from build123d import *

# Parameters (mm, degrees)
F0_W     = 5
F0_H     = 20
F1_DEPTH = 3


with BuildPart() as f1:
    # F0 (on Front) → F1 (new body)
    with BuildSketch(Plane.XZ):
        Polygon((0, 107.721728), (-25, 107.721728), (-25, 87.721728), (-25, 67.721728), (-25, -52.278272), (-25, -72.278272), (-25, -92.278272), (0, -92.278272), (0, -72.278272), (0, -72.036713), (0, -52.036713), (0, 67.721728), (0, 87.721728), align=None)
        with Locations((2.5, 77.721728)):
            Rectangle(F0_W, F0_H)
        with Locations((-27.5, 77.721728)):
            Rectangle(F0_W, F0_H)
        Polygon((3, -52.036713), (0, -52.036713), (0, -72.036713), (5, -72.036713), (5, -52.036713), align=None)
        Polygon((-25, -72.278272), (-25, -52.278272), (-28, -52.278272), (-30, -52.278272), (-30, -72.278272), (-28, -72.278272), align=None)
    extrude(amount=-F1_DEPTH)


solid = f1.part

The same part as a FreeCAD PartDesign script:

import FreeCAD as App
import Part
import Sketcher
from FreeCAD import Vector
Q = App.Units.Quantity


def add_polygon(sketch, points):
    """Adds a closed chain of lines whose ends are joined by coincident constraints."""
    first, n = sketch.GeometryCount, len(points)
    for a, b in zip(points, points[1:] + points[:1]):
        sketch.addGeometry(Part.LineSegment(App.Vector(*a, 0), App.Vector(*b, 0)), False)
    for i in range(n):
        sketch.addConstraint(Sketcher.Constraint("Coincident", first + i, 2, first + (i + 1) % n, 1))

doc = App.newDocument("Part")
body = doc.addObject("PartDesign::Body", "Body")

sketch1 = body.newObject("Sketcher::SketchObject", "Sketch")
sketch1.AttachmentSupport = (doc.getObject("XZ_Plane"), [""])
sketch1.MapMode = "FlatFace"
add_polygon(sketch1, [(0, 107.721728), (-25, 107.721728), (-25, 87.721728), (-30, 87.721728), (-30, 67.721728), (-25, 67.721728), (-25, -52.278272), (-30, -52.278272), (-30, -72.278272), (-25, -72.278272), (-25, -92.278272), (0, -92.278272), (0, -72.036713), (5, -72.036713), (5, -52.036713), (0, -52.036713), (0, 67.721728), (5, 67.721728), (5, 87.721728), (0, 87.721728)])
sketch1.addConstraint(Sketcher.Constraint("Horizontal", 0))
sketch1.addConstraint(Sketcher.Constraint("Vertical", 1))
sketch1.addConstraint(Sketcher.Constraint("Horizontal", 2))
sketch1.addConstraint(Sketcher.Constraint("Vertical", 3))
sketch1.addConstraint(Sketcher.Constraint("Horizontal", 4))
sketch1.addConstraint(Sketcher.Constraint("Vertical", 5))
sketch1.addConstraint(Sketcher.Constraint("Horizontal", 6))
sketch1.addConstraint(Sketcher.Constraint("Vertical", 7))
sketch1.addConstraint(Sketcher.Constraint("Horizontal", 8))
sketch1.addConstraint(Sketcher.Constraint("Vertical", 9))
sketch1.addConstraint(Sketcher.Constraint("Horizontal", 10))
sketch1.addConstraint(Sketcher.Constraint("Vertical", 11))
sketch1.addConstraint(Sketcher.Constraint("Horizontal", 12))
sketch1.addConstraint(Sketcher.Constraint("Vertical", 13))
sketch1.addConstraint(Sketcher.Constraint("Horizontal", 14))
sketch1.addConstraint(Sketcher.Constraint("Vertical", 15))
sketch1.addConstraint(Sketcher.Constraint("Horizontal", 16))
sketch1.addConstraint(Sketcher.Constraint("Vertical", 17))
sketch1.addConstraint(Sketcher.Constraint("Horizontal", 18))
sketch1.addConstraint(Sketcher.Constraint("Vertical", 19))
sketch1.addConstraint(Sketcher.Constraint("PointOnObject", 10, 2, -2))
sketch1.addConstraint(Sketcher.Constraint("PointOnObject", 14, 2, -2))
sketch1.addConstraint(Sketcher.Constraint("PointOnObject", 18, 2, -2))
sketch1.addConstraint(Sketcher.Constraint("Horizontal", 4, 2, 15, 2))
sketch1.addConstraint(Sketcher.Constraint("Horizontal", 2, 2, 17, 2))
sketch1.addConstraint(Sketcher.Constraint("Vertical", 1, 2, 4, 2))
sketch1.addConstraint(Sketcher.Constraint("Vertical", 3, 2, 6, 2))
sketch1.addConstraint(Sketcher.Constraint("Vertical", 5, 2, 8, 2))
sketch1.addConstraint(Sketcher.Constraint("Vertical", 13, 2, 16, 2))
sketch1.addConstraint(Sketcher.Constraint("Equal", 8, 12))
sketch1.addConstraint(Sketcher.Constraint("Equal", 1, 3))
sketch1.addConstraint(Sketcher.Constraint("Equal", 3, 7))
sketch1.addConstraint(Sketcher.Constraint("Equal", 7, 9))
sketch1.addConstraint(Sketcher.Constraint("Equal", 9, 13))
sketch1.addConstraint(Sketcher.Constraint("DistanceX", 0, 2, 0, 1, Q("25 mm")))
sketch1.addConstraint(Sketcher.Constraint("DistanceX", 2, 2, 2, 1, Q("5 mm")))
sketch1.addConstraint(Sketcher.Constraint("DistanceY", 1, 2, 1, 1, Q("20 mm")))
sketch1.addConstraint(Sketcher.Constraint("DistanceY", 5, 2, 5, 1, Q("120 mm")))
sketch1.addConstraint(Sketcher.Constraint("DistanceY", 11, 1, 11, 2, Q("20.241559 mm")))
sketch1.addConstraint(Sketcher.Constraint("DistanceY", -1, 1, 0, 2, Q("107.721728 mm")))
pad1 = body.newObject("PartDesign::Pad", "Pad")
pad1.Profile = sketch1
pad1.Length = 3
pad1.Reversed = True

doc.recompute()
